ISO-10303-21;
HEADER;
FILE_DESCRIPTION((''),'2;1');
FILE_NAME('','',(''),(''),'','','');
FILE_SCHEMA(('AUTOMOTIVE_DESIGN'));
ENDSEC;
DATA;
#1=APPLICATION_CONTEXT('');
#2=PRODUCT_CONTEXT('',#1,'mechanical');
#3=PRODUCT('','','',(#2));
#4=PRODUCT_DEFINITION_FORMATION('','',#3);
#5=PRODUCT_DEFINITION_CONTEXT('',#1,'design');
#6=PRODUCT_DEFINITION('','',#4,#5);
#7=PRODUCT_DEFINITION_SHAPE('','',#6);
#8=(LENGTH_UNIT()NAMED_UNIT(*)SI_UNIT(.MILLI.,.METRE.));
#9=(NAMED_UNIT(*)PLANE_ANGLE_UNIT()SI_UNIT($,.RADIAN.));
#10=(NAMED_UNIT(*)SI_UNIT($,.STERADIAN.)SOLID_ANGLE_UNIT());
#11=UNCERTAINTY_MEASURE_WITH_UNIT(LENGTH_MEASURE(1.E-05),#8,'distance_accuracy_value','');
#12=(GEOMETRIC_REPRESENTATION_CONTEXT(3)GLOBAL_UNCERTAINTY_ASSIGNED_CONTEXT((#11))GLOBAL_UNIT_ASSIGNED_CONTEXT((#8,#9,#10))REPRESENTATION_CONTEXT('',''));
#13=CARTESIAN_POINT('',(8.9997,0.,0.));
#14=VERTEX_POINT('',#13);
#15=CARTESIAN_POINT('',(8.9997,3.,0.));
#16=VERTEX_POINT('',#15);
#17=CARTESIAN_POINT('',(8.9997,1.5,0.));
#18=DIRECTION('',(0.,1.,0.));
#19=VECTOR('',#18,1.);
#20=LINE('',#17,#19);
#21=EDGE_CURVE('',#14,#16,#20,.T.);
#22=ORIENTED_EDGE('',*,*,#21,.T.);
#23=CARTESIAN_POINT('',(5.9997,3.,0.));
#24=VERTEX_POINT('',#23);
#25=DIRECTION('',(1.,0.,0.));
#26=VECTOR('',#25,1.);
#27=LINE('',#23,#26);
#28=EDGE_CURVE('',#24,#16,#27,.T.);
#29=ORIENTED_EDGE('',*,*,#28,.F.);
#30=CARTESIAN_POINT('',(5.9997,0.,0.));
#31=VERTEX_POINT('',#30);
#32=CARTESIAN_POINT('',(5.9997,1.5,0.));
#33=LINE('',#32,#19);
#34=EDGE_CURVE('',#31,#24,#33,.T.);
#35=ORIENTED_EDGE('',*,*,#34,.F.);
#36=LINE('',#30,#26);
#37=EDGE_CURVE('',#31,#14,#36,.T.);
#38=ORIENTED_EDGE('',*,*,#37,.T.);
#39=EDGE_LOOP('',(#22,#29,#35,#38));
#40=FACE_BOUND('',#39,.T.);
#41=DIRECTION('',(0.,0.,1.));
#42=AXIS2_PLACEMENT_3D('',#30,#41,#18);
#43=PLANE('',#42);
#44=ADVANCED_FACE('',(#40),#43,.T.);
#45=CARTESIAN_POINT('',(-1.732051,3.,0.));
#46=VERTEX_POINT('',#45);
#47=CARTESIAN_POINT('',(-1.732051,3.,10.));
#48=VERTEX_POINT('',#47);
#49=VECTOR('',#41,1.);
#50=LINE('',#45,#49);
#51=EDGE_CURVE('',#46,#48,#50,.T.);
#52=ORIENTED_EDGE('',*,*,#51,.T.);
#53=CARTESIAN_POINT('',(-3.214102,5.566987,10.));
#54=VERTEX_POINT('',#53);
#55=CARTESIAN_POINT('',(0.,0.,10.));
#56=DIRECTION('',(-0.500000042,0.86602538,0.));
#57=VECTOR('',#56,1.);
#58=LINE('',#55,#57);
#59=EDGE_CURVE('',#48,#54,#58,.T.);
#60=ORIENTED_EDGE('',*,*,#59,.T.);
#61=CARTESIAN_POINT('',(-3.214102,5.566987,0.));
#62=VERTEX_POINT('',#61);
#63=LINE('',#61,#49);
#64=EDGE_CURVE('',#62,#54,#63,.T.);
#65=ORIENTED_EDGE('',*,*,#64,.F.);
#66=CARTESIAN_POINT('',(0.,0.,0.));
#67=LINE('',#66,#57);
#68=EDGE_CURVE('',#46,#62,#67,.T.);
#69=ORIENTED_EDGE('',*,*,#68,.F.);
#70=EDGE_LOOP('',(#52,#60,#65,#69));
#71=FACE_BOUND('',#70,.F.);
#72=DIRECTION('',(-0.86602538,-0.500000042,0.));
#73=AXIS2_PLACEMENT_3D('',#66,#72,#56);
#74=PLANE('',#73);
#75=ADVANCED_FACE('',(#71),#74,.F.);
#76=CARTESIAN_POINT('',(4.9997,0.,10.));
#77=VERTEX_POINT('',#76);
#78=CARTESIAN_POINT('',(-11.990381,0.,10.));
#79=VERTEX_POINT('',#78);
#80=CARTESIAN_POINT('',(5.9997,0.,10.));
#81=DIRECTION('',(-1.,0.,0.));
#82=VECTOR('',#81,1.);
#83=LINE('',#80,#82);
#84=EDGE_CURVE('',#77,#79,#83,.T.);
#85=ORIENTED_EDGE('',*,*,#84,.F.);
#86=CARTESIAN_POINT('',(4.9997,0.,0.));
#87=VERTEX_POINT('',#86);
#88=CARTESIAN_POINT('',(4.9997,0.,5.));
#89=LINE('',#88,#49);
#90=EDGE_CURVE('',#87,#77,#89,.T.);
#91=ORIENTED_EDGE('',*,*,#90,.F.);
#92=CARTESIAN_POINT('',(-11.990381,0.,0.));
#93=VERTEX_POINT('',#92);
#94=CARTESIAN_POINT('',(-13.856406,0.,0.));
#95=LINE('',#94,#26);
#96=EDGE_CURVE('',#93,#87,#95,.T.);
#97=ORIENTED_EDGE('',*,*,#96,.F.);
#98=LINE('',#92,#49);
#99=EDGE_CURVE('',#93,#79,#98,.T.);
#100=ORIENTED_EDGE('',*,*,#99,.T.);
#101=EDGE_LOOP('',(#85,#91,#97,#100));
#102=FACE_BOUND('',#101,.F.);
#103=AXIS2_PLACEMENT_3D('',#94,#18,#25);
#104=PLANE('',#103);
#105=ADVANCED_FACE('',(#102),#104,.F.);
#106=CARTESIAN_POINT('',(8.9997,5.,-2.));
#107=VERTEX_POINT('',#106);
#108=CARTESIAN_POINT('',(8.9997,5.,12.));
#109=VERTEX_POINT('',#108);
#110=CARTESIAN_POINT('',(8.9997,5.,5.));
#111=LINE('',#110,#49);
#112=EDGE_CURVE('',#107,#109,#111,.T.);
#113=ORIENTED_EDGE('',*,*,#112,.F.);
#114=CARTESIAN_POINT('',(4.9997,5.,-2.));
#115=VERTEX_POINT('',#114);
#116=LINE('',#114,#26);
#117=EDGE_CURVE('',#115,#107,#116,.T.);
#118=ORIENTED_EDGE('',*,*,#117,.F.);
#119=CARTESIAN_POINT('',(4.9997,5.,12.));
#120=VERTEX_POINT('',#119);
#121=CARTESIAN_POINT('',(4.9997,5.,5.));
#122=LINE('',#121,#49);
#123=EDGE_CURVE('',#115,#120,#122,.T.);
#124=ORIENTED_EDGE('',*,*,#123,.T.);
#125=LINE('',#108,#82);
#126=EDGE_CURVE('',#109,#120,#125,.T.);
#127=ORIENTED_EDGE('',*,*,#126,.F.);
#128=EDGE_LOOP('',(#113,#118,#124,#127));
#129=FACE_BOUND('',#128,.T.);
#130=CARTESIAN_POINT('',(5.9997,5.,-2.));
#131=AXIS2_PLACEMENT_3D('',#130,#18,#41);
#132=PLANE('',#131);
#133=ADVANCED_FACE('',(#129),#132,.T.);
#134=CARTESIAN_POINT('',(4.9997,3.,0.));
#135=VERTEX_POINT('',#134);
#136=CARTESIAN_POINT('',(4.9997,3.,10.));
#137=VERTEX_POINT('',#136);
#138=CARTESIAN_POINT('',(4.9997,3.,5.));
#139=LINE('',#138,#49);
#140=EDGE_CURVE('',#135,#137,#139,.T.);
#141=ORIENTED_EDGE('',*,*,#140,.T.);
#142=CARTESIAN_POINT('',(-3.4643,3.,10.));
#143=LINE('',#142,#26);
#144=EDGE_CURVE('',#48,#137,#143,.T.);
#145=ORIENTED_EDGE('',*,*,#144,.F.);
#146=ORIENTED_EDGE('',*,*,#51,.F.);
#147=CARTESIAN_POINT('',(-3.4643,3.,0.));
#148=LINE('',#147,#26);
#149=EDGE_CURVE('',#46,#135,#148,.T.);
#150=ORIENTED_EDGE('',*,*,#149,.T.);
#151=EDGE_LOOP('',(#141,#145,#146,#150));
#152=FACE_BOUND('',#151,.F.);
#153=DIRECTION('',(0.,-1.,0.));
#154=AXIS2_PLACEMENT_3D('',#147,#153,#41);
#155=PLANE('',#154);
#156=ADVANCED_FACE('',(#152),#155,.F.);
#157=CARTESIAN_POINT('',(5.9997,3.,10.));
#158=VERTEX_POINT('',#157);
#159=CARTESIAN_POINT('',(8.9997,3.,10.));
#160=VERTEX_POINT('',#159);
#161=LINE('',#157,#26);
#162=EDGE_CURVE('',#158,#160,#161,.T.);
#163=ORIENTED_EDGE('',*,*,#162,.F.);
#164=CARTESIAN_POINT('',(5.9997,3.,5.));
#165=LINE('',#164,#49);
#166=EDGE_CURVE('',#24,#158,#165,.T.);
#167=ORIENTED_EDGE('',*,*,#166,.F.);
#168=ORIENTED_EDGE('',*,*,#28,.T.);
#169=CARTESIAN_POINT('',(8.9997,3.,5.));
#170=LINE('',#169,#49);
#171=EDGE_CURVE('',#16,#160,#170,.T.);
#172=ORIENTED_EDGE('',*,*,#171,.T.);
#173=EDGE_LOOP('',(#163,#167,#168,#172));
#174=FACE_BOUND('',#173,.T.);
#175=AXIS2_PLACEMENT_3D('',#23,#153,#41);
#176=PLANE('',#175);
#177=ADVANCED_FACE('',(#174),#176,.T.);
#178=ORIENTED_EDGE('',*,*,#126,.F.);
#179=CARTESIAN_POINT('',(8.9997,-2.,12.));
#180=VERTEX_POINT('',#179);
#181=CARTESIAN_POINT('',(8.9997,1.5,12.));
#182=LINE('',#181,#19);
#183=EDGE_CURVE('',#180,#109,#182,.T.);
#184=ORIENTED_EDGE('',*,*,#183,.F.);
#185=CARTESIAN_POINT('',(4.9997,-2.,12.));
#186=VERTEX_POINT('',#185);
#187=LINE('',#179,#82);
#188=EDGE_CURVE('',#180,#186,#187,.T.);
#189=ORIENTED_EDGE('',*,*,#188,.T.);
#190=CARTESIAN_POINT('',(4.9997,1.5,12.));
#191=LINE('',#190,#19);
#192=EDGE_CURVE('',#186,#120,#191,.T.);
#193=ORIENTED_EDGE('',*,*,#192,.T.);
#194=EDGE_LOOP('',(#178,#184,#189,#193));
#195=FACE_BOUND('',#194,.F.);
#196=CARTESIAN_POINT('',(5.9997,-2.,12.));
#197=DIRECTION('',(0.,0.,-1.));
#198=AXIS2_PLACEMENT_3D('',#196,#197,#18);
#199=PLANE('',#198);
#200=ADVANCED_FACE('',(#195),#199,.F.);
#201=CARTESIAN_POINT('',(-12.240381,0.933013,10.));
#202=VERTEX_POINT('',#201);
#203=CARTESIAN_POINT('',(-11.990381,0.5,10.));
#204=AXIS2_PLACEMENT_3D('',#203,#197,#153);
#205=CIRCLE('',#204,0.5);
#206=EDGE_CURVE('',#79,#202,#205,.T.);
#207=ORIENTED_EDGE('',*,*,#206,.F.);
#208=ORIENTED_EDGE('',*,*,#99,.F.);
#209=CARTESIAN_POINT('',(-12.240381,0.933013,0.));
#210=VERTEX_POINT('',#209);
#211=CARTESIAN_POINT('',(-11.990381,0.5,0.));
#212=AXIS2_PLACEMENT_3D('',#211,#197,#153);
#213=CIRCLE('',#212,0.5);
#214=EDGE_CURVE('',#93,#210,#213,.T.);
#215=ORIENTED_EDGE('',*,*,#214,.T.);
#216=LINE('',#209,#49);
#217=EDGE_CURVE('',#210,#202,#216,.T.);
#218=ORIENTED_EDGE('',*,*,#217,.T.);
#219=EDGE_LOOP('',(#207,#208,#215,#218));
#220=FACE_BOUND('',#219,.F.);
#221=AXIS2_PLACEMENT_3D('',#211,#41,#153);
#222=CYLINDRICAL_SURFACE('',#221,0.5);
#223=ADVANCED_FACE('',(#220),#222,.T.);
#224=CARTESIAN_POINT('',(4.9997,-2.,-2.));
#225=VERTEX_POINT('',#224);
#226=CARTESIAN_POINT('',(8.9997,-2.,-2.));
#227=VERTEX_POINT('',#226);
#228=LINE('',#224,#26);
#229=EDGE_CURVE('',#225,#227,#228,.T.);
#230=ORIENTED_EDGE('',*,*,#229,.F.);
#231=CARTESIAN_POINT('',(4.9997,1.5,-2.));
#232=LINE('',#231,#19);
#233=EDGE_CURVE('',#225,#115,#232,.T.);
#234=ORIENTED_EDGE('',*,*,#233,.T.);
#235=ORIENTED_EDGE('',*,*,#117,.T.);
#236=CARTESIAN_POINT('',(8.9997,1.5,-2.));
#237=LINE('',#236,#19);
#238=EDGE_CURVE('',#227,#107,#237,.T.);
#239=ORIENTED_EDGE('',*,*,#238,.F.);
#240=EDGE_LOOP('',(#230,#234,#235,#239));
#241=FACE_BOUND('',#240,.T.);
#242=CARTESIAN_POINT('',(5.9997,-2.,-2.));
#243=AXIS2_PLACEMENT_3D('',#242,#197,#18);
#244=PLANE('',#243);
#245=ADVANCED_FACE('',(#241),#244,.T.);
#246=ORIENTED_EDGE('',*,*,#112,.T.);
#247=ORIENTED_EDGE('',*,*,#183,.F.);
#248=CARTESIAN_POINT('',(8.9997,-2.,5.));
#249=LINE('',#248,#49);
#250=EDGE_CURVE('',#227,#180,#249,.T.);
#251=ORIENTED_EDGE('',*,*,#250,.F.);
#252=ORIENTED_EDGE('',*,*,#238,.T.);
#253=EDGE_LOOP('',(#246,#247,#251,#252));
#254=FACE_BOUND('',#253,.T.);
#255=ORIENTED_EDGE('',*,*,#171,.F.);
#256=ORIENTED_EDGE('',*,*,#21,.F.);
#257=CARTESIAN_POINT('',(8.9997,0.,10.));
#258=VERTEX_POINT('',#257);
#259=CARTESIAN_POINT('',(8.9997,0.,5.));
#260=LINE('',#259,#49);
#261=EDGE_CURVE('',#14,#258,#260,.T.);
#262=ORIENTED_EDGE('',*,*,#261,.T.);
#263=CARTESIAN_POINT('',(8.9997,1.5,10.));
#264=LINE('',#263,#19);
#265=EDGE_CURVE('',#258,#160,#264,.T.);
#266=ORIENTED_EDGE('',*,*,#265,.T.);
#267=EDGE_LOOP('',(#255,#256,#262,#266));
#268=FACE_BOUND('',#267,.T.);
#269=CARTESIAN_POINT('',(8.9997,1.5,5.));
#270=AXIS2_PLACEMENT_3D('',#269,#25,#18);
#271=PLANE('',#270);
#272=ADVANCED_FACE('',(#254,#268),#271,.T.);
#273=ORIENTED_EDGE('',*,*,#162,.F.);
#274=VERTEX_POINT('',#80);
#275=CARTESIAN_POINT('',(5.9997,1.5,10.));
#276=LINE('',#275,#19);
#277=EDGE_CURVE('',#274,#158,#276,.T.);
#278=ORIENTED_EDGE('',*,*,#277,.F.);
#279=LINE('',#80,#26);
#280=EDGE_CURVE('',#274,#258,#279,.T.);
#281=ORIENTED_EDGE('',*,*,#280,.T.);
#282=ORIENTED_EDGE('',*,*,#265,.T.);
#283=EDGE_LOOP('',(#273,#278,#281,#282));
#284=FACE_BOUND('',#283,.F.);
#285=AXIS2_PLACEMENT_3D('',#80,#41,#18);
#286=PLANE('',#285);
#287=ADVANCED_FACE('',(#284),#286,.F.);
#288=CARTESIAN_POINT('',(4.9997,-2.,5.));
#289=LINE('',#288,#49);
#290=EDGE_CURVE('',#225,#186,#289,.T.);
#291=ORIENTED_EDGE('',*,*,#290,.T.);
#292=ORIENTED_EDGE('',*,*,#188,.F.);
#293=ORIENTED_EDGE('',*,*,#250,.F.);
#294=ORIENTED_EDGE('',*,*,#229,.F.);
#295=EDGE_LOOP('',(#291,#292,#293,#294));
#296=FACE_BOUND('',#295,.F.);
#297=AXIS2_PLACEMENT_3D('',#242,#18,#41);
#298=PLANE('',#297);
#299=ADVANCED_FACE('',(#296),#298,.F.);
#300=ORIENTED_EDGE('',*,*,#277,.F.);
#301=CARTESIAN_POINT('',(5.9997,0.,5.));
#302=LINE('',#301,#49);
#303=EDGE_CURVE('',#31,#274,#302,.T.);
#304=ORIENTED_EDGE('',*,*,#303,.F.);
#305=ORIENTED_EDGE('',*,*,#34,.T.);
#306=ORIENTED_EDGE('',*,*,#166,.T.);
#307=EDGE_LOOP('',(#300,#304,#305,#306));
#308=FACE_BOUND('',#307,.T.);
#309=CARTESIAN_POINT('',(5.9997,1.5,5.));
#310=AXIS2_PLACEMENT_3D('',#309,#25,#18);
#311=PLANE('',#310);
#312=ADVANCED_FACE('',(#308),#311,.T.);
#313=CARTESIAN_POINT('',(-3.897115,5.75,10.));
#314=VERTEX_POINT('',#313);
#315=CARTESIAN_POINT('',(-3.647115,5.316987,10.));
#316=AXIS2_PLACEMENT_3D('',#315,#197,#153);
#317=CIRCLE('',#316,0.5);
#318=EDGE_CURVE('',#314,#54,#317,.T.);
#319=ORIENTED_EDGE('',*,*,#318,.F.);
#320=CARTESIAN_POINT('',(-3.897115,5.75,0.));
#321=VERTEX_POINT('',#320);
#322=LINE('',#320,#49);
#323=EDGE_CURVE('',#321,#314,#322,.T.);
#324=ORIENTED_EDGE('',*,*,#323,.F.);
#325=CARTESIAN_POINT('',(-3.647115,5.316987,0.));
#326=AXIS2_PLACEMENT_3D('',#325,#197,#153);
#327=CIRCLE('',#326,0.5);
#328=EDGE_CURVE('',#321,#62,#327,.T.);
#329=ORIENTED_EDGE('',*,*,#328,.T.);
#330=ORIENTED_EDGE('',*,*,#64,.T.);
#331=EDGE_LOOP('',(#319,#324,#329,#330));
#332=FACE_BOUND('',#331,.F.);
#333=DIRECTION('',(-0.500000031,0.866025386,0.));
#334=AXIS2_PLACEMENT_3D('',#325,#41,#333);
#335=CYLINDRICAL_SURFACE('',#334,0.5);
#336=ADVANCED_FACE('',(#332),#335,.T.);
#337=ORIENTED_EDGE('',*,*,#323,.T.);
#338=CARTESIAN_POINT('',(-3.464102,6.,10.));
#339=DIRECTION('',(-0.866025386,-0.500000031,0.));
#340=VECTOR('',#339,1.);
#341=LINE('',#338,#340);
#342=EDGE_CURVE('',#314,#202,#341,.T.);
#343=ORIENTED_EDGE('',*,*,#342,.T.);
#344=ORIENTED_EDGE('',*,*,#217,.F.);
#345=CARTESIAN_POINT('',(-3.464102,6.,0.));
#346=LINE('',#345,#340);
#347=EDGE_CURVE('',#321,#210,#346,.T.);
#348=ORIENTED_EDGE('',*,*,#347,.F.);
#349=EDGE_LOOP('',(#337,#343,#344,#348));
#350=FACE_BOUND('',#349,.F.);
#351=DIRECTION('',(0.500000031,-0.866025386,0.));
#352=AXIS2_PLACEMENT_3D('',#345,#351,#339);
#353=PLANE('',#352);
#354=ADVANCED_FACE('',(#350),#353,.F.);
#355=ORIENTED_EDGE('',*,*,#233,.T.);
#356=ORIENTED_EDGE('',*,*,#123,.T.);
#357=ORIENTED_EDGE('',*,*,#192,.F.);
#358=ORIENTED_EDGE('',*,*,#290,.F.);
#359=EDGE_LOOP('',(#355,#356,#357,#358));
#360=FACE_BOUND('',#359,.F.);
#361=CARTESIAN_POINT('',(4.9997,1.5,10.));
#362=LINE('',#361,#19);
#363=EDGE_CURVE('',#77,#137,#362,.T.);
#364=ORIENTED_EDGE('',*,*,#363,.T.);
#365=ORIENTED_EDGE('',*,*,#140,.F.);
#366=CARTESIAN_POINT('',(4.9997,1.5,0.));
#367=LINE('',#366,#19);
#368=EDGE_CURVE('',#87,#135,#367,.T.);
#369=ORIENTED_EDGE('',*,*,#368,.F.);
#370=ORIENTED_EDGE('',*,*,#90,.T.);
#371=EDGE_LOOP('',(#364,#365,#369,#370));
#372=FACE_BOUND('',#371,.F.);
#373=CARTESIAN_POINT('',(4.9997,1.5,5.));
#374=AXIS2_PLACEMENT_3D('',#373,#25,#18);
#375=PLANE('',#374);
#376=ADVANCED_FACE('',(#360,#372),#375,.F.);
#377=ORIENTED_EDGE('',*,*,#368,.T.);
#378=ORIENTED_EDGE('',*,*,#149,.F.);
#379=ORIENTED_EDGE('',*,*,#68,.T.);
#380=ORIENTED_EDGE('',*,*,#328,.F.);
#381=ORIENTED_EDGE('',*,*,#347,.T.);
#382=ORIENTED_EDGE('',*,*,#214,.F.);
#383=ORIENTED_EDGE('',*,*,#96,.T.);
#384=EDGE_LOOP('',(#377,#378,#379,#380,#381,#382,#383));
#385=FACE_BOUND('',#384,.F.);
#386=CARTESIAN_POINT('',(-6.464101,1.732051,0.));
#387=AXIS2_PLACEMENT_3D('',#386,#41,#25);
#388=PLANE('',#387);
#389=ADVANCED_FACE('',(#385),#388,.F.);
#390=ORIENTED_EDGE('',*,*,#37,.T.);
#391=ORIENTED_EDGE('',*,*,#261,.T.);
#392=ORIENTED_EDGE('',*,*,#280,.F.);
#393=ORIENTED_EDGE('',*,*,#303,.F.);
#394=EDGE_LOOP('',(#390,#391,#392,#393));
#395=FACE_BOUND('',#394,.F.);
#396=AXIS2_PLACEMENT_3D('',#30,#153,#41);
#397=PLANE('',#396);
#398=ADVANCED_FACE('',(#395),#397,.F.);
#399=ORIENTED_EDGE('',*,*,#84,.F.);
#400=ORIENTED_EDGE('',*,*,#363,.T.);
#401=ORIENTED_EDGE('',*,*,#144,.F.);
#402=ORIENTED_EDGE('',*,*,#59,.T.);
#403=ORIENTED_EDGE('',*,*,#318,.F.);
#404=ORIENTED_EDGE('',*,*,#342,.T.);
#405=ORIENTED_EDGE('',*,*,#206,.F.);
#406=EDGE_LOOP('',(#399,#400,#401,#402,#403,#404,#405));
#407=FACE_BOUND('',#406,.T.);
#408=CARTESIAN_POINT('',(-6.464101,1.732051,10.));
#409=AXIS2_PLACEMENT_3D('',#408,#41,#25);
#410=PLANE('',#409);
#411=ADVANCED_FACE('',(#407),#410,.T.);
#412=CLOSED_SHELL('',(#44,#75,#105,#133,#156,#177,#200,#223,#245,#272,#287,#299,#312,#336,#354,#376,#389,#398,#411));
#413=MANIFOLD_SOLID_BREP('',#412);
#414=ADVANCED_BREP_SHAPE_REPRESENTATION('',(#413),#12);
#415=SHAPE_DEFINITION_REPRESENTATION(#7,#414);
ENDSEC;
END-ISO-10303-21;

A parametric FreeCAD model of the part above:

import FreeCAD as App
import Part
import Sketcher
from FreeCAD import Vector
Q = App.Units.Quantity


def edges_at(feature, points):
    """Names of the edges that pass closest to the given points."""
    edges = feature.Shape.Edges
    near = lambda p: min(range(len(edges)), key=lambda i: edges[i].distToShape(Part.Vertex(*p))[0])
    return sorted({f"Edge{near(p) + 1}" for p in points})


def add_polygon(sketch, points):
    """Adds a closed chain of lines whose ends are joined by coincident constraints."""
    first, n = sketch.GeometryCount, len(points)
    for a, b in zip(points, points[1:] + points[:1]):
        sketch.addGeometry(Part.LineSegment(App.Vector(*a, 0), App.Vector(*b, 0)), False)
    for i in range(n):
        sketch.addConstraint(Sketcher.Constraint("Coincident", first + i, 2, first + (i + 1) % n, 1))

doc = App.newDocument("Part")
params = doc.addObject("Spreadsheet::Sheet", "Params")
for row, (alias, value) in enumerate([
    ("sketch1_length", "11.999999 mm"),
    ("pad1_length", "10 mm"),
    ("sketch2_width", "3 mm"),
    ("sketch2_height", "10 mm"),
    ("pad2_length", "9.464 mm"),
    ("sketch3_width", "7 mm"),
    ("sketch3_width2", "3 mm"),
    ("sketch3_height", "14 mm"),
    ("sketch3_height2", "10 mm"),
    ("pad3_length", "3 mm"),
    ("pad3_length2", "1 mm"),
    ("fillet_radius", "0.5 mm"),
], start=1):
    params.set(f"A{row}", alias)
    params.set(f"B{row}", "=" + value)
    params.setAlias(f"B{row}", alias)

body = doc.addObject("PartDesign::Body", "Body")

# Sketch on XY plane
sketch1 = doc.addObject("Sketcher::SketchObject", "Sketch")
body.addObject(sketch1)
sketch1.AttachmentSupport = (doc.XY_Plane, [""])
sketch1.MapMode = "FlatFace"
add_polygon(sketch1, [(-14, 0), (0, 0), (-3, 6)])  # lines 0-2
sketch1.addConstraint([
    Sketcher.Constraint("Horizontal", 0),
    Sketcher.Constraint("Coincident", 0, 2, -1, 1),
    Sketcher.Constraint("Perpendicular", 1, 2),
    Sketcher.Constraint("Angle", 1, Q("120.000003 deg")),
    Sketcher.Constraint("Distance", 2, Q("11.999999 mm")),
])
sketch1.setExpression("Constraints[7]", "Params.sketch1_length")
pad1 = doc.addObject("PartDesign::Pad", "Pad")
body.addObject(pad1)
pad1.Profile = sketch1
pad1.setExpression("Length", "Params.pad1_length")

# Sketch on YZ plane
sketch2 = doc.addObject("Sketcher::SketchObject", "Sketch001")
body.addObject(sketch2)
sketch2.AttachmentSupport = (doc.YZ_Plane, [""])
sketch2.MapMode = "FlatFace"
sketch2.AttachmentOffset = App.Placement(Vector(0, 0, -3.4643), App.Rotation())
add_polygon(sketch2, [(0, 10), (0, 0), (3, 0), (3, 10)])  # lines 0-3
sketch2.addConstraint([
    Sketcher.Constraint("Vertical", 0),
    Sketcher.Constraint("Horizontal", 1),
    Sketcher.Constraint("Vertical", 2),
    Sketcher.Constraint("Horizontal", 3),
    Sketcher.Constraint("Coincident", 0, 2, -1, 1),
    Sketcher.Constraint("DistanceX", 1, 1, 1, 2, Q("3 mm")),
    Sketcher.Constraint("DistanceY", 0, 2, 0, 1, Q("10 mm")),
])
sketch2.setExpression("Constraints[9]", "Params.sketch2_width")
sketch2.setExpression("Constraints[10]", "Params.sketch2_height")
pad2 = doc.addObject("PartDesign::Pad", "Pad001")
body.addObject(pad2)
pad2.Profile = sketch2
pad2.setExpression("Length", "Params.pad2_length")

# Sketch on YZ plane
sketch3 = doc.addObject("Sketcher::SketchObject", "Sketch002")
body.addObject(sketch3)
sketch3.AttachmentSupport = (doc.YZ_Plane, [""])
sketch3.MapMode = "FlatFace"
sketch3.AttachmentOffset = App.Placement(Vector(0, 0, 5.9997), App.Rotation())
add_polygon(sketch3, [(-2, 12), (-2, -2), (5, -2), (5, 12)])  # lines 0-3
add_polygon(sketch3, [(3, 0), (0, 0), (0, 10), (3, 10)])  # lines 4-7
sketch3.addConstraint([
    Sketcher.Constraint("Vertical", 0),
    Sketcher.Constraint("Horizontal", 1),
    Sketcher.Constraint("Vertical", 2),
    Sketcher.Constraint("Horizontal", 3),
    Sketcher.Constraint("Horizontal", 4),
    Sketcher.Constraint("Vertical", 5),
    Sketcher.Constraint("Horizontal", 6),
    Sketcher.Constraint("Vertical", 7),
    Sketcher.Constraint("Coincident", 4, 2, -1, 1),
    Sketcher.Constraint("DistanceX", 1, 1, 1, 2, Q("7 mm")),
    Sketcher.Constraint("DistanceX", 4, 2, 4, 1, Q("3 mm")),
    Sketcher.Constraint("DistanceY", 0, 2, 0, 1, Q("14 mm")),
    Sketcher.Constraint("DistanceY", 5, 1, 5, 2, Q("10 mm")),
    Sketcher.Constraint("DistanceX", 0, 2, -1, 1, Q("2 mm")),
    Sketcher.Constraint("DistanceY", 0, 2, -1, 1, Q("2 mm")),
])
sketch3.setExpression("Constraints[17]", "Params.sketch3_width")
sketch3.setExpression("Constraints[18]", "Params.sketch3_width2")
sketch3.setExpression("Constraints[19]", "Params.sketch3_height")
sketch3.setExpression("Constraints[20]", "Params.sketch3_height2")
pad3 = doc.addObject("PartDesign::Pad", "Pad002")
body.addObject(pad3)
pad3.Profile = sketch3
pad3.Type = "TwoLengths"
pad3.setExpression("Length", "Params.pad3_length")
pad3.setExpression("Length2", "Params.pad3_length2")
doc.recompute()

fillet = doc.addObject("PartDesign::Fillet", "Fillet")
body.addObject(fillet)
fillet.Base = (pad3, edges_at(pad3, [(-13.856, 0, 5), (-3.464, 6, 5)]))
fillet.setExpression("Radius", "Params.fillet_radius")

doc.recompute()
